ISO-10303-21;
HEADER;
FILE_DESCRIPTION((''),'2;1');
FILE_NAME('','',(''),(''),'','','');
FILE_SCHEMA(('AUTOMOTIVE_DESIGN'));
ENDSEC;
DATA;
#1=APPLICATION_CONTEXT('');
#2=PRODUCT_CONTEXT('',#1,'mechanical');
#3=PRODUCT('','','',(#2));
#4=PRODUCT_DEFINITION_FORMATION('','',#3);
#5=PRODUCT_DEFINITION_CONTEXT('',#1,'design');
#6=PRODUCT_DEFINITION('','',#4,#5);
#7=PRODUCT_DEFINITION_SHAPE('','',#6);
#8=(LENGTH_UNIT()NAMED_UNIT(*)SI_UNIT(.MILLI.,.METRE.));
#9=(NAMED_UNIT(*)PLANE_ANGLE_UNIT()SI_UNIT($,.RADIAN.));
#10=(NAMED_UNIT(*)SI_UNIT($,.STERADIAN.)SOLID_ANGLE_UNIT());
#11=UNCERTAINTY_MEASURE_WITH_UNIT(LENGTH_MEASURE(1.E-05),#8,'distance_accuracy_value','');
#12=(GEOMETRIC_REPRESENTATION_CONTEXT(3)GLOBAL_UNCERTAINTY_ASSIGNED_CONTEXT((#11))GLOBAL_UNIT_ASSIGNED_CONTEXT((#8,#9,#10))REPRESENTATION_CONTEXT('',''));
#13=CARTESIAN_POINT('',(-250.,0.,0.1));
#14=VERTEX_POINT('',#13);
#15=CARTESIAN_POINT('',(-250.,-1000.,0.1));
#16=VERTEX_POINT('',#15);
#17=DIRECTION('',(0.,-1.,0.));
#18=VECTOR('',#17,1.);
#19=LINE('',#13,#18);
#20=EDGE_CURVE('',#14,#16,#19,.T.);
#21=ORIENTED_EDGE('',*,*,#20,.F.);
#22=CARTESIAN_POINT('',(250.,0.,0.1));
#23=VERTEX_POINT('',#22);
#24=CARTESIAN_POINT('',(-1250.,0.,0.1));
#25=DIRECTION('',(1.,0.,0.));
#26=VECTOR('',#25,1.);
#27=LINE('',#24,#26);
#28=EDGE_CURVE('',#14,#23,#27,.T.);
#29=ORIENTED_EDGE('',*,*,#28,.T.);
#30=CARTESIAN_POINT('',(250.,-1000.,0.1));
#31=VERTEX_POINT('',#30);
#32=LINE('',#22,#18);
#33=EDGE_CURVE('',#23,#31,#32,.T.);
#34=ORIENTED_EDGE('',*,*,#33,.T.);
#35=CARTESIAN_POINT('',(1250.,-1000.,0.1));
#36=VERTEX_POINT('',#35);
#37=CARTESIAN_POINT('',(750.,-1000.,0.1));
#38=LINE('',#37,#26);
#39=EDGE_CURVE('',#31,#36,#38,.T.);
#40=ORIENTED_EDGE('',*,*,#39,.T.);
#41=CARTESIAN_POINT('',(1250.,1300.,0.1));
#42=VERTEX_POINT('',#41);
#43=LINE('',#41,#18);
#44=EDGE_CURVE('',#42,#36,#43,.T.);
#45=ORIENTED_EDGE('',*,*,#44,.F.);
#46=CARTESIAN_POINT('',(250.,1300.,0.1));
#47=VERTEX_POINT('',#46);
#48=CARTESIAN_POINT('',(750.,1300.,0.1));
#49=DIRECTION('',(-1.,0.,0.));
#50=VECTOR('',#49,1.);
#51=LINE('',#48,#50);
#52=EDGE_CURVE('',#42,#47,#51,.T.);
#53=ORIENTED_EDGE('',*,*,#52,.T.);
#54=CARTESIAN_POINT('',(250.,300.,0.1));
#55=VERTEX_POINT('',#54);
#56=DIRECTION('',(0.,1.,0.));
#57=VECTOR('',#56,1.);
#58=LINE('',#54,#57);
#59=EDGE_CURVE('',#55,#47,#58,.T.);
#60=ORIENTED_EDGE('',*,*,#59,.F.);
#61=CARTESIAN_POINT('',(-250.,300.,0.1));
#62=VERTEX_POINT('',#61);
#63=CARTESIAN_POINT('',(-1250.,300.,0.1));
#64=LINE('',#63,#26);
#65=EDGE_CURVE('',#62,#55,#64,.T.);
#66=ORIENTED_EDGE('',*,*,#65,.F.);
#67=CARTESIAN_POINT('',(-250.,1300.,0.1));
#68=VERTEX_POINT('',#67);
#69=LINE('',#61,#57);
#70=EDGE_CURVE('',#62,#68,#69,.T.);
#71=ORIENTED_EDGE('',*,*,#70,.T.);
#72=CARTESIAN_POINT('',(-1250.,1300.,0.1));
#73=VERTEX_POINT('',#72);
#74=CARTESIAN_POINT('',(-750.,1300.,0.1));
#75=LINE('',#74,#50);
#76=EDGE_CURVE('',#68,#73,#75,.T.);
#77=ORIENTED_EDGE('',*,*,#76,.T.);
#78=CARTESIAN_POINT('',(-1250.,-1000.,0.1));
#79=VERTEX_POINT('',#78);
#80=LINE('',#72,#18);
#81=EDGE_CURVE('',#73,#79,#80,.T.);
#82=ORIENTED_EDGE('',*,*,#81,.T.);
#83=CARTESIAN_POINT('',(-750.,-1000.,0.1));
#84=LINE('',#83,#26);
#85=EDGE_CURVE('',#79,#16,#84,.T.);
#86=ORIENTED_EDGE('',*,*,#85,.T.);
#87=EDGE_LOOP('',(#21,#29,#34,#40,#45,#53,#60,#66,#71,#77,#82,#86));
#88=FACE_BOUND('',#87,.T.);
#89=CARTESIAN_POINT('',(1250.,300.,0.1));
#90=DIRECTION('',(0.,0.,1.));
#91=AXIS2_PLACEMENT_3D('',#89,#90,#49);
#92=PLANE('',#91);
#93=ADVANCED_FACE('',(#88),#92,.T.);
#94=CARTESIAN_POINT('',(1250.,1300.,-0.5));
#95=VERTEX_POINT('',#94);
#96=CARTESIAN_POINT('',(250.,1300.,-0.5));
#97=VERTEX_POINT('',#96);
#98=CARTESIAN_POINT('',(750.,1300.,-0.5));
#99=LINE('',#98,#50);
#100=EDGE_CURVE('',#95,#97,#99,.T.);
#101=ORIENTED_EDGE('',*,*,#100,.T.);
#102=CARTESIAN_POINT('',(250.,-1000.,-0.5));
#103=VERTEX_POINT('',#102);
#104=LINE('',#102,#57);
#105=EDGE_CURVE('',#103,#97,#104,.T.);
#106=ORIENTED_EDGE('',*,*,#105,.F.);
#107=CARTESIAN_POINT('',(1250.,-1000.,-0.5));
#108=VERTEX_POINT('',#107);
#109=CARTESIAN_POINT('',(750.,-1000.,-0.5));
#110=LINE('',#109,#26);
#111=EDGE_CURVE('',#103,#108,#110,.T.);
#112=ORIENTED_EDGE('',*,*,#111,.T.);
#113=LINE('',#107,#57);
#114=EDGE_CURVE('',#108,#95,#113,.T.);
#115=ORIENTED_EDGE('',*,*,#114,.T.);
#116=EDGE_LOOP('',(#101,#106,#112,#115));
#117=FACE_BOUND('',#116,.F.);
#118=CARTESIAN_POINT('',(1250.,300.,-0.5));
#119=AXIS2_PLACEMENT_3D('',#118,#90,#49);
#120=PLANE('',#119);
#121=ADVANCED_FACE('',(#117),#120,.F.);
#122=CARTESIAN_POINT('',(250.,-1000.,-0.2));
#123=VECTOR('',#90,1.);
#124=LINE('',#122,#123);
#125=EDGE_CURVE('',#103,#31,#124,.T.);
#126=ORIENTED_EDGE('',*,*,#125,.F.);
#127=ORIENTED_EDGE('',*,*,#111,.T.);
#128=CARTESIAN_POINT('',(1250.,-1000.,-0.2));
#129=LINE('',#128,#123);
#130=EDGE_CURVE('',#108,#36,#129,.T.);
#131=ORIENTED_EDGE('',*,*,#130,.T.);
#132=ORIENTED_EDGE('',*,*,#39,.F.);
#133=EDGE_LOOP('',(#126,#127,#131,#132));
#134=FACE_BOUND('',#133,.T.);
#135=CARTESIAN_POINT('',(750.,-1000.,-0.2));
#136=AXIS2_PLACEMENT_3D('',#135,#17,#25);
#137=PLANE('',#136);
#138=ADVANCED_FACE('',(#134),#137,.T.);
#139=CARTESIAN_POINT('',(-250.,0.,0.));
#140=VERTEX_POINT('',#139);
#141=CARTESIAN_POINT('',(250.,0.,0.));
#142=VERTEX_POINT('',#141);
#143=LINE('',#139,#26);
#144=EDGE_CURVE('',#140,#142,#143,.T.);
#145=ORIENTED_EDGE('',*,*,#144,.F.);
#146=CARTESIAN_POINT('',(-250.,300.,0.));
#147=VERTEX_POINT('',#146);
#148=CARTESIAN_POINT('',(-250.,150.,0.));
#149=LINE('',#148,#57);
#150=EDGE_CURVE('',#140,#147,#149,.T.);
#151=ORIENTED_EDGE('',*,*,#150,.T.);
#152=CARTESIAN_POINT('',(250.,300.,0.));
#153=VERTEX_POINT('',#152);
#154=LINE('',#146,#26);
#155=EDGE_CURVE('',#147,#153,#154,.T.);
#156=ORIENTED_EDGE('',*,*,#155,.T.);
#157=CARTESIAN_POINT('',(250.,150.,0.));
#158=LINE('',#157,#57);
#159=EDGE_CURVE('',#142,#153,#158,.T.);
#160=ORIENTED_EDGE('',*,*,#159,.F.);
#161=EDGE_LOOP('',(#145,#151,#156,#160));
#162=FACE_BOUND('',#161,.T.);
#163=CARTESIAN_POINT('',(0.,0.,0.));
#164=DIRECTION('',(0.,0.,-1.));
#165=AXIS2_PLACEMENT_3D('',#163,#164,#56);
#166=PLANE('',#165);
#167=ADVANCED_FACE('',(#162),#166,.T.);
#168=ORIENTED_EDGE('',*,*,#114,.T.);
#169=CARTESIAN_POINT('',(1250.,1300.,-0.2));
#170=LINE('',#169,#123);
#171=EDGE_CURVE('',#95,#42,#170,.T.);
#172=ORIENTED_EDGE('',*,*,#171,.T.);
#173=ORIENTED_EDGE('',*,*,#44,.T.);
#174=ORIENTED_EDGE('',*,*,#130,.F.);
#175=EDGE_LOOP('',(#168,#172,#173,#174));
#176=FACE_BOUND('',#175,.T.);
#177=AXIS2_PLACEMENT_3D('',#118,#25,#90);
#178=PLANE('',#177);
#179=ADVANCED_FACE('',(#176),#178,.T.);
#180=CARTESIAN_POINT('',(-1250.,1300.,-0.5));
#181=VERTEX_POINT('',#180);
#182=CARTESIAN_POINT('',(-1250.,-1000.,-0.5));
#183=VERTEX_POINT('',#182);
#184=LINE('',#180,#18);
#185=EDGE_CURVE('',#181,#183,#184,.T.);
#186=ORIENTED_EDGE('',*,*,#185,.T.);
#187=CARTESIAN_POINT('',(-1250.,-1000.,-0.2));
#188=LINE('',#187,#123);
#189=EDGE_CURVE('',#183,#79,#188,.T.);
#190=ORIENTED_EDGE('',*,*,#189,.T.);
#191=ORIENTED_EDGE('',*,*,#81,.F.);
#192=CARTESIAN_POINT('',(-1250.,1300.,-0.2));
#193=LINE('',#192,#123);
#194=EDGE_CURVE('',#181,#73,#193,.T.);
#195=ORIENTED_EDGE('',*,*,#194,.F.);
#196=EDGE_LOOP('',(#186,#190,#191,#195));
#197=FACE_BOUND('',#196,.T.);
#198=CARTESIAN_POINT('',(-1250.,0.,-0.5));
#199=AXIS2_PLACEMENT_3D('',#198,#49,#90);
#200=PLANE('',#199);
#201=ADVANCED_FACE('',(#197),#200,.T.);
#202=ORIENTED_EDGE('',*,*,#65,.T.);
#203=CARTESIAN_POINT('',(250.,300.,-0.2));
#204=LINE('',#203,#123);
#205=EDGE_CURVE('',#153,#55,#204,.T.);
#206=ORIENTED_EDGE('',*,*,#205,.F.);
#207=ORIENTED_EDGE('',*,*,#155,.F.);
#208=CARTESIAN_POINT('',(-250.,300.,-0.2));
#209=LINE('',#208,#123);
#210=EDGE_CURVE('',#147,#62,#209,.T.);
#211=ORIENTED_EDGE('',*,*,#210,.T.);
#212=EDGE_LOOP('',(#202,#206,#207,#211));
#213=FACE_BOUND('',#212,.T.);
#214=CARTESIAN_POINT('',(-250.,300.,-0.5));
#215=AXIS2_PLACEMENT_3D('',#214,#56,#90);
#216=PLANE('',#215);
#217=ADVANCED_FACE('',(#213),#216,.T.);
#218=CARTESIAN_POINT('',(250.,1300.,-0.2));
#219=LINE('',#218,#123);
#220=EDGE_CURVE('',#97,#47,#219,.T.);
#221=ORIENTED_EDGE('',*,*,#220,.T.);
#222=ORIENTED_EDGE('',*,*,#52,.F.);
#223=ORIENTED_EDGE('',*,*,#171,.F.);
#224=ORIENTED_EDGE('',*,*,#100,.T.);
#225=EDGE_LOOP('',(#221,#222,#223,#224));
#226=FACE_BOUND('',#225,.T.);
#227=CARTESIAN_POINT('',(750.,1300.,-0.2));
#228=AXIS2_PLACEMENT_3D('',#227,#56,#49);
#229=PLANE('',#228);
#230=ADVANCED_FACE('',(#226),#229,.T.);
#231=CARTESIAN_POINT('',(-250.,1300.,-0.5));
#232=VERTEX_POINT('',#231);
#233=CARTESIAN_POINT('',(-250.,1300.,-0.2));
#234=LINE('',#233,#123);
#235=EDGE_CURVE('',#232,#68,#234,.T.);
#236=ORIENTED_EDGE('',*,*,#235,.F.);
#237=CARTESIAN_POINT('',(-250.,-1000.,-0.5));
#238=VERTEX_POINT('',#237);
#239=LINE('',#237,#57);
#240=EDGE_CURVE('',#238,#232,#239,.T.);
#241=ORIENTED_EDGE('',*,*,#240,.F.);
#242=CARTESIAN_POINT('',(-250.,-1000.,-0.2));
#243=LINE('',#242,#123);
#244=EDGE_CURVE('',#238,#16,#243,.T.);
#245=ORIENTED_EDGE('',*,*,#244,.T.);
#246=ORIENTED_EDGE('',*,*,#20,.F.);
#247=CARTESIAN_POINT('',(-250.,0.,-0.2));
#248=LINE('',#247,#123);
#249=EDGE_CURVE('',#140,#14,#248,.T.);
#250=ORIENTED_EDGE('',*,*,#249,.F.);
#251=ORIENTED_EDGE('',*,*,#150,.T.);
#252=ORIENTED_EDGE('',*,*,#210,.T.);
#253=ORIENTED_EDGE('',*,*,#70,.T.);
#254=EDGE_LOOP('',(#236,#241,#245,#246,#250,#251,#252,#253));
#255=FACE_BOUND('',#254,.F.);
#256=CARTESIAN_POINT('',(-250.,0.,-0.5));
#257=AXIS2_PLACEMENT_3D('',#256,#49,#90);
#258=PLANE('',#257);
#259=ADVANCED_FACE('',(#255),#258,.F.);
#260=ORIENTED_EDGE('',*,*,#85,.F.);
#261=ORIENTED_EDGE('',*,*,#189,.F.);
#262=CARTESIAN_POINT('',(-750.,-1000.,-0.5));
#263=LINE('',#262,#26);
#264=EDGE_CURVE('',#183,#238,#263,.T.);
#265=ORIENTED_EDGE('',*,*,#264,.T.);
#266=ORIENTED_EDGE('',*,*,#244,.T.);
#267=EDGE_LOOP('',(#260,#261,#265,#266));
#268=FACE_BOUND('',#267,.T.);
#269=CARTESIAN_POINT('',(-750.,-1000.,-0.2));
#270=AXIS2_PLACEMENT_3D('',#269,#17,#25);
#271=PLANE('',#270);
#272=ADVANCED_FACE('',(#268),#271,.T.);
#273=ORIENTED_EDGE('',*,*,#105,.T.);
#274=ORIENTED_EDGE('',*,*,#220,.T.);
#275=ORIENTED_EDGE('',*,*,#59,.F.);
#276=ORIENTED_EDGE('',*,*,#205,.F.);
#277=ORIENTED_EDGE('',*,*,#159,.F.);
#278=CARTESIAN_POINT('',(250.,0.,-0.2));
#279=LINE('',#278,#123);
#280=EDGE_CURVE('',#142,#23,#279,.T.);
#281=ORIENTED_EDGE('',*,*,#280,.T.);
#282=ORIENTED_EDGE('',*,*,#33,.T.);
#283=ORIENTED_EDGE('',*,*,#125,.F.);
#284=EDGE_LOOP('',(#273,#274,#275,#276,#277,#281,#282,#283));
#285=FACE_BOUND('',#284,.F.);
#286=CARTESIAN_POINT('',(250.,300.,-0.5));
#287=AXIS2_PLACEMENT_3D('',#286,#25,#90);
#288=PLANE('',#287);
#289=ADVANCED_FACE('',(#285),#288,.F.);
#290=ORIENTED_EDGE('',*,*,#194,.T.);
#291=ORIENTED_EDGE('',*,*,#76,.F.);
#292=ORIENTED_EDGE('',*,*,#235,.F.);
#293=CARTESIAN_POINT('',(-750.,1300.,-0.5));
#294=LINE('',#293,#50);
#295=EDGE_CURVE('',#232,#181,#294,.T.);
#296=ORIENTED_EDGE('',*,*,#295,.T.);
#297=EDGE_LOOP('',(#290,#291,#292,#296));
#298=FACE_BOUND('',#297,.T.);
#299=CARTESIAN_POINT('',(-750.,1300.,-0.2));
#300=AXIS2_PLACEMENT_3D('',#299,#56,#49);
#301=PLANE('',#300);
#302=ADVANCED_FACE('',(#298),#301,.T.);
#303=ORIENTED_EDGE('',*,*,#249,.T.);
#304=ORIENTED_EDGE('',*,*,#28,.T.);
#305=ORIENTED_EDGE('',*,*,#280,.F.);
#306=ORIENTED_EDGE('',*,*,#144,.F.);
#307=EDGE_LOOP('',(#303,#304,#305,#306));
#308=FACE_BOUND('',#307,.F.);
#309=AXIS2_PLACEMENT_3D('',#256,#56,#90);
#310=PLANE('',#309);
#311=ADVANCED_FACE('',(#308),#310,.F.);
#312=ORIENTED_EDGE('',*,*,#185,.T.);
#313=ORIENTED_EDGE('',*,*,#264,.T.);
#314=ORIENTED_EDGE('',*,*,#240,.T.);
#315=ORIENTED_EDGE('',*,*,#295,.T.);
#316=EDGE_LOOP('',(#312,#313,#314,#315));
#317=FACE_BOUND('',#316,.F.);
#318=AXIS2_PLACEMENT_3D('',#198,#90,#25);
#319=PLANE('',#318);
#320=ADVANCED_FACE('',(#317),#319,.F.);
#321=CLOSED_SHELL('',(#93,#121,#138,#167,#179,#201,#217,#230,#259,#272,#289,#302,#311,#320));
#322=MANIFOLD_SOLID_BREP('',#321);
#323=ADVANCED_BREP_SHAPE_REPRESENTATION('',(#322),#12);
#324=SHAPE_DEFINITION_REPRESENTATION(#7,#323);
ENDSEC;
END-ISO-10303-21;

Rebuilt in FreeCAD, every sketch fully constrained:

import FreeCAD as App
import Part
import Sketcher
Q = App.Units.Quantity


def add_polygon(sketch, points):
    """Adds a closed chain of lines whose ends are joined by coincident constraints."""
    first, n = sketch.GeometryCount, len(points)
    for a, b in zip(points, points[1:] + points[:1]):
        sketch.addGeometry(Part.LineSegment(App.Vector(*a, 0), App.Vector(*b, 0)), False)
    for i in range(n):
        sketch.addConstraint(Sketcher.Constraint("Coincident", first + i, 2, first + (i + 1) % n, 1))

doc = App.newDocument("Part")
params = doc.addObject("Spreadsheet::Sheet", "Params")
for row, (alias, value) in enumerate([
    ("sketch1_width", "300 mm"),
    ("sketch1_height", "0.1 mm"),
    ("pad1_length", "500 mm"),
    ("sketch2_width", "300 mm"),
    ("sketch2_height", "0.6 mm"),
    ("pad2_length", "1000 mm"),
    ("sketch3_width", "300 mm"),
    ("sketch3_height", "0.6 mm"),
    ("pad3_length", "1000 mm"),
    ("sketch4_width", "1000 mm"),
    ("sketch4_height", "0.6 mm"),
    ("pad4_length", "1000 mm"),
    ("sketch5_width", "1000 mm"),
    ("sketch5_height", "0.6 mm"),
    ("pad5_length", "1000 mm"),
], start=1):
    params.set(f"A{row}", alias)
    params.set(f"B{row}", "=" + value)
    params.setAlias(f"B{row}", alias)

body = doc.addObject("PartDesign::Body", "Body")

# Sketch on YZ plane
sketch1 = doc.addObject("Sketcher::SketchObject", "Sketch")
body.addObject(sketch1)
sketch1.AttachmentSupport = (doc.YZ_Plane, [""])
sketch1.MapMode = "FlatFace"
add_polygon(sketch1, [(0, 0.1), (0, 0), (300, 0), (300, 0.1)])  # lines 0-3
sketch1.addConstraint(Sketcher.Constraint("Vertical", 0))
sketch1.addConstraint(Sketcher.Constraint("Horizontal", 1))
sketch1.addConstraint(Sketcher.Constraint("Vertical", 2))
sketch1.addConstraint(Sketcher.Constraint("Horizontal", 3))
sketch1.addConstraint(Sketcher.Constraint("Coincident", 0, 2, -1, 1))
sketch1.addConstraint(Sketcher.Constraint("DistanceX", 1, 1, 1, 2, Q("300 mm")))
sketch1.addConstraint(Sketcher.Constraint("DistanceY", 0, 2, 0, 1, Q("0.1 mm")))
sketch1.setExpression("Constraints[9]", "Params.sketch1_width")
sketch1.setExpression("Constraints[10]", "Params.sketch1_height")
pad1 = doc.addObject("PartDesign::Pad", "Pad")
body.addObject(pad1)
pad1.Profile = sketch1
pad1.setExpression("Length", "Params.pad1_length")
pad1.Midplane = True

# Sketch on YZ plane
sketch2 = doc.addObject("Sketcher::SketchObject", "Sketch001")
body.addObject(sketch2)
sketch2.AttachmentSupport = (doc.YZ_Plane, [""])
sketch2.MapMode = "FlatFace"
sketch2.AttachmentOffset = App.Placement(App.Vector(0, 0, 250), App.Rotation())
add_polygon(sketch2, [(0, 0.1), (0, -0.5), (300, -0.5), (300, 0.1)])  # lines 0-3
sketch2.addConstraint(Sketcher.Constraint("Vertical", 0))
sketch2.addConstraint(Sketcher.Constraint("Horizontal", 1))
sketch2.addConstraint(Sketcher.Constraint("Vertical", 2))
sketch2.addConstraint(Sketcher.Constraint("Horizontal", 3))
sketch2.addConstraint(Sketcher.Constraint("PointOnObject", 0, 2, -2))
sketch2.addConstraint(Sketcher.Constraint("DistanceX", 1, 1, 1, 2, Q("300 mm")))
sketch2.addConstraint(Sketcher.Constraint("DistanceY", 0, 2, 0, 1, Q("0.6 mm")))
sketch2.addConstraint(Sketcher.Constraint("DistanceY", 0, 2, -1, 1, Q("0.5 mm")))
sketch2.setExpression("Constraints[9]", "Params.sketch2_width")
sketch2.setExpression("Constraints[10]", "Params.sketch2_height")
pad2 = doc.addObject("PartDesign::Pad", "Pad001")
body.addObject(pad2)
pad2.Profile = sketch2
pad2.setExpression("Length", "Params.pad2_length")

# Sketch on YZ plane
sketch3 = doc.addObject("Sketcher::SketchObject", "Sketch002")
body.addObject(sketch3)
sketch3.AttachmentSupport = (doc.YZ_Plane, [""])
sketch3.MapMode = "FlatFace"
sketch3.AttachmentOffset = App.Placement(App.Vector(0, 0, -250), App.Rotation())
add_polygon(sketch3, [(300, 0.1), (300, -0.5), (0, -0.5), (0, 0.1)])  # lines 0-3
sketch3.addConstraint(Sketcher.Constraint("Vertical", 0))
sketch3.addConstraint(Sketcher.Constraint("Horizontal", 1))
sketch3.addConstraint(Sketcher.Constraint("Vertical", 2))
sketch3.addConstraint(Sketcher.Constraint("Horizontal", 3))
sketch3.addConstraint(Sketcher.Constraint("PointOnObject", 1, 2, -2))
sketch3.addConstraint(Sketcher.Constraint("DistanceX", 1, 2, 1, 1, Q("300 mm")))
sketch3.addConstraint(Sketcher.Constraint("DistanceY", 0, 2, 0, 1, Q("0.6 mm")))
sketch3.addConstraint(Sketcher.Constraint("DistanceY", 0, 2, -1, 1, Q("0.5 mm")))
sketch3.setExpression("Constraints[9]", "Params.sketch3_width")
sketch3.setExpression("Constraints[10]", "Params.sketch3_height")
pad3 = doc.addObject("PartDesign::Pad", "Pad002")
body.addObject(pad3)
pad3.Profile = sketch3
pad3.setExpression("Length", "Params.pad3_length")
pad3.Reversed = True

# Sketch on XZ plane
sketch4 = doc.addObject("Sketcher::SketchObject", "Sketch003")
body.addObject(sketch4)
sketch4.AttachmentSupport = (doc.XZ_Plane, [""])
sketch4.MapMode = "FlatFace"
add_polygon(sketch4, [(-1250, 0.1), (-1250, -0.5), (-250, -0.5), (-250, 0.1)])  # lines 0-3
add_polygon(sketch4, [(250, 0.1), (250, -0.5), (1250, -0.5), (1250, 0.1)])  # lines 4-7
sketch4.addConstraint(Sketcher.Constraint("Vertical", 0))
sketch4.addConstraint(Sketcher.Constraint("Horizontal", 1))
sketch4.addConstraint(Sketcher.Constraint("Vertical", 2))
sketch4.addConstraint(Sketcher.Constraint("Horizontal", 3))
sketch4.addConstraint(Sketcher.Constraint("Vertical", 4))
sketch4.addConstraint(Sketcher.Constraint("Horizontal", 5))
sketch4.addConstraint(Sketcher.Constraint("Vertical", 6))
sketch4.addConstraint(Sketcher.Constraint("Horizontal", 7))
sketch4.addConstraint(Sketcher.Constraint("Symmetric", 1, 2, 4, 2, -2))
sketch4.addConstraint(Sketcher.Constraint("Symmetric", 3, 2, 6, 2, -2))
sketch4.addConstraint(Sketcher.Constraint("DistanceX", 1, 1, 1, 2, Q("1000 mm")))
sketch4.addConstraint(Sketcher.Constraint("DistanceY", 0, 2, 0, 1, Q("0.6 mm")))
sketch4.addConstraint(Sketcher.Constraint("DistanceX", 0, 2, -1, 1, Q("1250 mm")))
sketch4.addConstraint(Sketcher.Constraint("DistanceY", 0, 2, -1, 1, Q("0.5 mm")))
sketch4.setExpression("Constraints[18]", "Params.sketch4_width")
sketch4.setExpression("Constraints[19]", "Params.sketch4_height")
pad4 = doc.addObject("PartDesign::Pad", "Pad003")
body.addObject(pad4)
pad4.Profile = sketch4
pad4.setExpression("Length", "Params.pad4_length")

# Sketch on XZ plane
sketch5 = doc.addObject("Sketcher::SketchObject", "Sketch004")
body.addObject(sketch5)
sketch5.AttachmentSupport = (doc.XZ_Plane, [""])
sketch5.MapMode = "FlatFace"
sketch5.AttachmentOffset = App.Placement(App.Vector(0, 0, -300), App.Rotation())
add_polygon(sketch5, [(1250, 0.1), (1250, -0.5), (250, -0.5), (250, 0.1)])  # lines 0-3
add_polygon(sketch5, [(-250, 0.1), (-250, -0.5), (-1250, -0.5), (-1250, 0.1)])  # lines 4-7
sketch5.addConstraint(Sketcher.Constraint("Vertical", 0))
sketch5.addConstraint(Sketcher.Constraint("Horizontal", 1))
sketch5.addConstraint(Sketcher.Constraint("Vertical", 2))
sketch5.addConstraint(Sketcher.Constraint("Horizontal", 3))
sketch5.addConstraint(Sketcher.Constraint("Vertical", 4))
sketch5.addConstraint(Sketcher.Constraint("Horizontal", 5))
sketch5.addConstraint(Sketcher.Constraint("Vertical", 6))
sketch5.addConstraint(Sketcher.Constraint("Horizontal", 7))
sketch5.addConstraint(Sketcher.Constraint("Symmetric", 1, 2, 4, 2, -2))
sketch5.addConstraint(Sketcher.Constraint("Symmetric", 3, 2, 6, 2, -2))
sketch5.addConstraint(Sketcher.Constraint("DistanceX", 1, 2, 1, 1, Q("1000 mm")))
sketch5.addConstraint(Sketcher.Constraint("DistanceY", 0, 2, 0, 1, Q("0.6 mm")))
sketch5.addConstraint(Sketcher.Constraint("DistanceX", -1, 1, 0, 2, Q("1250 mm")))
sketch5.addConstraint(Sketcher.Constraint("DistanceY", 0, 2, -1, 1, Q("0.5 mm")))
sketch5.setExpression("Constraints[18]", "Params.sketch5_width")
sketch5.setExpression("Constraints[19]", "Params.sketch5_height")
pad5 = doc.addObject("PartDesign::Pad", "Pad004")
body.addObject(pad5)
pad5.Profile = sketch5
pad5.setExpression("Length", "Params.pad5_length")
pad5.Reversed = True

doc.recompute()
